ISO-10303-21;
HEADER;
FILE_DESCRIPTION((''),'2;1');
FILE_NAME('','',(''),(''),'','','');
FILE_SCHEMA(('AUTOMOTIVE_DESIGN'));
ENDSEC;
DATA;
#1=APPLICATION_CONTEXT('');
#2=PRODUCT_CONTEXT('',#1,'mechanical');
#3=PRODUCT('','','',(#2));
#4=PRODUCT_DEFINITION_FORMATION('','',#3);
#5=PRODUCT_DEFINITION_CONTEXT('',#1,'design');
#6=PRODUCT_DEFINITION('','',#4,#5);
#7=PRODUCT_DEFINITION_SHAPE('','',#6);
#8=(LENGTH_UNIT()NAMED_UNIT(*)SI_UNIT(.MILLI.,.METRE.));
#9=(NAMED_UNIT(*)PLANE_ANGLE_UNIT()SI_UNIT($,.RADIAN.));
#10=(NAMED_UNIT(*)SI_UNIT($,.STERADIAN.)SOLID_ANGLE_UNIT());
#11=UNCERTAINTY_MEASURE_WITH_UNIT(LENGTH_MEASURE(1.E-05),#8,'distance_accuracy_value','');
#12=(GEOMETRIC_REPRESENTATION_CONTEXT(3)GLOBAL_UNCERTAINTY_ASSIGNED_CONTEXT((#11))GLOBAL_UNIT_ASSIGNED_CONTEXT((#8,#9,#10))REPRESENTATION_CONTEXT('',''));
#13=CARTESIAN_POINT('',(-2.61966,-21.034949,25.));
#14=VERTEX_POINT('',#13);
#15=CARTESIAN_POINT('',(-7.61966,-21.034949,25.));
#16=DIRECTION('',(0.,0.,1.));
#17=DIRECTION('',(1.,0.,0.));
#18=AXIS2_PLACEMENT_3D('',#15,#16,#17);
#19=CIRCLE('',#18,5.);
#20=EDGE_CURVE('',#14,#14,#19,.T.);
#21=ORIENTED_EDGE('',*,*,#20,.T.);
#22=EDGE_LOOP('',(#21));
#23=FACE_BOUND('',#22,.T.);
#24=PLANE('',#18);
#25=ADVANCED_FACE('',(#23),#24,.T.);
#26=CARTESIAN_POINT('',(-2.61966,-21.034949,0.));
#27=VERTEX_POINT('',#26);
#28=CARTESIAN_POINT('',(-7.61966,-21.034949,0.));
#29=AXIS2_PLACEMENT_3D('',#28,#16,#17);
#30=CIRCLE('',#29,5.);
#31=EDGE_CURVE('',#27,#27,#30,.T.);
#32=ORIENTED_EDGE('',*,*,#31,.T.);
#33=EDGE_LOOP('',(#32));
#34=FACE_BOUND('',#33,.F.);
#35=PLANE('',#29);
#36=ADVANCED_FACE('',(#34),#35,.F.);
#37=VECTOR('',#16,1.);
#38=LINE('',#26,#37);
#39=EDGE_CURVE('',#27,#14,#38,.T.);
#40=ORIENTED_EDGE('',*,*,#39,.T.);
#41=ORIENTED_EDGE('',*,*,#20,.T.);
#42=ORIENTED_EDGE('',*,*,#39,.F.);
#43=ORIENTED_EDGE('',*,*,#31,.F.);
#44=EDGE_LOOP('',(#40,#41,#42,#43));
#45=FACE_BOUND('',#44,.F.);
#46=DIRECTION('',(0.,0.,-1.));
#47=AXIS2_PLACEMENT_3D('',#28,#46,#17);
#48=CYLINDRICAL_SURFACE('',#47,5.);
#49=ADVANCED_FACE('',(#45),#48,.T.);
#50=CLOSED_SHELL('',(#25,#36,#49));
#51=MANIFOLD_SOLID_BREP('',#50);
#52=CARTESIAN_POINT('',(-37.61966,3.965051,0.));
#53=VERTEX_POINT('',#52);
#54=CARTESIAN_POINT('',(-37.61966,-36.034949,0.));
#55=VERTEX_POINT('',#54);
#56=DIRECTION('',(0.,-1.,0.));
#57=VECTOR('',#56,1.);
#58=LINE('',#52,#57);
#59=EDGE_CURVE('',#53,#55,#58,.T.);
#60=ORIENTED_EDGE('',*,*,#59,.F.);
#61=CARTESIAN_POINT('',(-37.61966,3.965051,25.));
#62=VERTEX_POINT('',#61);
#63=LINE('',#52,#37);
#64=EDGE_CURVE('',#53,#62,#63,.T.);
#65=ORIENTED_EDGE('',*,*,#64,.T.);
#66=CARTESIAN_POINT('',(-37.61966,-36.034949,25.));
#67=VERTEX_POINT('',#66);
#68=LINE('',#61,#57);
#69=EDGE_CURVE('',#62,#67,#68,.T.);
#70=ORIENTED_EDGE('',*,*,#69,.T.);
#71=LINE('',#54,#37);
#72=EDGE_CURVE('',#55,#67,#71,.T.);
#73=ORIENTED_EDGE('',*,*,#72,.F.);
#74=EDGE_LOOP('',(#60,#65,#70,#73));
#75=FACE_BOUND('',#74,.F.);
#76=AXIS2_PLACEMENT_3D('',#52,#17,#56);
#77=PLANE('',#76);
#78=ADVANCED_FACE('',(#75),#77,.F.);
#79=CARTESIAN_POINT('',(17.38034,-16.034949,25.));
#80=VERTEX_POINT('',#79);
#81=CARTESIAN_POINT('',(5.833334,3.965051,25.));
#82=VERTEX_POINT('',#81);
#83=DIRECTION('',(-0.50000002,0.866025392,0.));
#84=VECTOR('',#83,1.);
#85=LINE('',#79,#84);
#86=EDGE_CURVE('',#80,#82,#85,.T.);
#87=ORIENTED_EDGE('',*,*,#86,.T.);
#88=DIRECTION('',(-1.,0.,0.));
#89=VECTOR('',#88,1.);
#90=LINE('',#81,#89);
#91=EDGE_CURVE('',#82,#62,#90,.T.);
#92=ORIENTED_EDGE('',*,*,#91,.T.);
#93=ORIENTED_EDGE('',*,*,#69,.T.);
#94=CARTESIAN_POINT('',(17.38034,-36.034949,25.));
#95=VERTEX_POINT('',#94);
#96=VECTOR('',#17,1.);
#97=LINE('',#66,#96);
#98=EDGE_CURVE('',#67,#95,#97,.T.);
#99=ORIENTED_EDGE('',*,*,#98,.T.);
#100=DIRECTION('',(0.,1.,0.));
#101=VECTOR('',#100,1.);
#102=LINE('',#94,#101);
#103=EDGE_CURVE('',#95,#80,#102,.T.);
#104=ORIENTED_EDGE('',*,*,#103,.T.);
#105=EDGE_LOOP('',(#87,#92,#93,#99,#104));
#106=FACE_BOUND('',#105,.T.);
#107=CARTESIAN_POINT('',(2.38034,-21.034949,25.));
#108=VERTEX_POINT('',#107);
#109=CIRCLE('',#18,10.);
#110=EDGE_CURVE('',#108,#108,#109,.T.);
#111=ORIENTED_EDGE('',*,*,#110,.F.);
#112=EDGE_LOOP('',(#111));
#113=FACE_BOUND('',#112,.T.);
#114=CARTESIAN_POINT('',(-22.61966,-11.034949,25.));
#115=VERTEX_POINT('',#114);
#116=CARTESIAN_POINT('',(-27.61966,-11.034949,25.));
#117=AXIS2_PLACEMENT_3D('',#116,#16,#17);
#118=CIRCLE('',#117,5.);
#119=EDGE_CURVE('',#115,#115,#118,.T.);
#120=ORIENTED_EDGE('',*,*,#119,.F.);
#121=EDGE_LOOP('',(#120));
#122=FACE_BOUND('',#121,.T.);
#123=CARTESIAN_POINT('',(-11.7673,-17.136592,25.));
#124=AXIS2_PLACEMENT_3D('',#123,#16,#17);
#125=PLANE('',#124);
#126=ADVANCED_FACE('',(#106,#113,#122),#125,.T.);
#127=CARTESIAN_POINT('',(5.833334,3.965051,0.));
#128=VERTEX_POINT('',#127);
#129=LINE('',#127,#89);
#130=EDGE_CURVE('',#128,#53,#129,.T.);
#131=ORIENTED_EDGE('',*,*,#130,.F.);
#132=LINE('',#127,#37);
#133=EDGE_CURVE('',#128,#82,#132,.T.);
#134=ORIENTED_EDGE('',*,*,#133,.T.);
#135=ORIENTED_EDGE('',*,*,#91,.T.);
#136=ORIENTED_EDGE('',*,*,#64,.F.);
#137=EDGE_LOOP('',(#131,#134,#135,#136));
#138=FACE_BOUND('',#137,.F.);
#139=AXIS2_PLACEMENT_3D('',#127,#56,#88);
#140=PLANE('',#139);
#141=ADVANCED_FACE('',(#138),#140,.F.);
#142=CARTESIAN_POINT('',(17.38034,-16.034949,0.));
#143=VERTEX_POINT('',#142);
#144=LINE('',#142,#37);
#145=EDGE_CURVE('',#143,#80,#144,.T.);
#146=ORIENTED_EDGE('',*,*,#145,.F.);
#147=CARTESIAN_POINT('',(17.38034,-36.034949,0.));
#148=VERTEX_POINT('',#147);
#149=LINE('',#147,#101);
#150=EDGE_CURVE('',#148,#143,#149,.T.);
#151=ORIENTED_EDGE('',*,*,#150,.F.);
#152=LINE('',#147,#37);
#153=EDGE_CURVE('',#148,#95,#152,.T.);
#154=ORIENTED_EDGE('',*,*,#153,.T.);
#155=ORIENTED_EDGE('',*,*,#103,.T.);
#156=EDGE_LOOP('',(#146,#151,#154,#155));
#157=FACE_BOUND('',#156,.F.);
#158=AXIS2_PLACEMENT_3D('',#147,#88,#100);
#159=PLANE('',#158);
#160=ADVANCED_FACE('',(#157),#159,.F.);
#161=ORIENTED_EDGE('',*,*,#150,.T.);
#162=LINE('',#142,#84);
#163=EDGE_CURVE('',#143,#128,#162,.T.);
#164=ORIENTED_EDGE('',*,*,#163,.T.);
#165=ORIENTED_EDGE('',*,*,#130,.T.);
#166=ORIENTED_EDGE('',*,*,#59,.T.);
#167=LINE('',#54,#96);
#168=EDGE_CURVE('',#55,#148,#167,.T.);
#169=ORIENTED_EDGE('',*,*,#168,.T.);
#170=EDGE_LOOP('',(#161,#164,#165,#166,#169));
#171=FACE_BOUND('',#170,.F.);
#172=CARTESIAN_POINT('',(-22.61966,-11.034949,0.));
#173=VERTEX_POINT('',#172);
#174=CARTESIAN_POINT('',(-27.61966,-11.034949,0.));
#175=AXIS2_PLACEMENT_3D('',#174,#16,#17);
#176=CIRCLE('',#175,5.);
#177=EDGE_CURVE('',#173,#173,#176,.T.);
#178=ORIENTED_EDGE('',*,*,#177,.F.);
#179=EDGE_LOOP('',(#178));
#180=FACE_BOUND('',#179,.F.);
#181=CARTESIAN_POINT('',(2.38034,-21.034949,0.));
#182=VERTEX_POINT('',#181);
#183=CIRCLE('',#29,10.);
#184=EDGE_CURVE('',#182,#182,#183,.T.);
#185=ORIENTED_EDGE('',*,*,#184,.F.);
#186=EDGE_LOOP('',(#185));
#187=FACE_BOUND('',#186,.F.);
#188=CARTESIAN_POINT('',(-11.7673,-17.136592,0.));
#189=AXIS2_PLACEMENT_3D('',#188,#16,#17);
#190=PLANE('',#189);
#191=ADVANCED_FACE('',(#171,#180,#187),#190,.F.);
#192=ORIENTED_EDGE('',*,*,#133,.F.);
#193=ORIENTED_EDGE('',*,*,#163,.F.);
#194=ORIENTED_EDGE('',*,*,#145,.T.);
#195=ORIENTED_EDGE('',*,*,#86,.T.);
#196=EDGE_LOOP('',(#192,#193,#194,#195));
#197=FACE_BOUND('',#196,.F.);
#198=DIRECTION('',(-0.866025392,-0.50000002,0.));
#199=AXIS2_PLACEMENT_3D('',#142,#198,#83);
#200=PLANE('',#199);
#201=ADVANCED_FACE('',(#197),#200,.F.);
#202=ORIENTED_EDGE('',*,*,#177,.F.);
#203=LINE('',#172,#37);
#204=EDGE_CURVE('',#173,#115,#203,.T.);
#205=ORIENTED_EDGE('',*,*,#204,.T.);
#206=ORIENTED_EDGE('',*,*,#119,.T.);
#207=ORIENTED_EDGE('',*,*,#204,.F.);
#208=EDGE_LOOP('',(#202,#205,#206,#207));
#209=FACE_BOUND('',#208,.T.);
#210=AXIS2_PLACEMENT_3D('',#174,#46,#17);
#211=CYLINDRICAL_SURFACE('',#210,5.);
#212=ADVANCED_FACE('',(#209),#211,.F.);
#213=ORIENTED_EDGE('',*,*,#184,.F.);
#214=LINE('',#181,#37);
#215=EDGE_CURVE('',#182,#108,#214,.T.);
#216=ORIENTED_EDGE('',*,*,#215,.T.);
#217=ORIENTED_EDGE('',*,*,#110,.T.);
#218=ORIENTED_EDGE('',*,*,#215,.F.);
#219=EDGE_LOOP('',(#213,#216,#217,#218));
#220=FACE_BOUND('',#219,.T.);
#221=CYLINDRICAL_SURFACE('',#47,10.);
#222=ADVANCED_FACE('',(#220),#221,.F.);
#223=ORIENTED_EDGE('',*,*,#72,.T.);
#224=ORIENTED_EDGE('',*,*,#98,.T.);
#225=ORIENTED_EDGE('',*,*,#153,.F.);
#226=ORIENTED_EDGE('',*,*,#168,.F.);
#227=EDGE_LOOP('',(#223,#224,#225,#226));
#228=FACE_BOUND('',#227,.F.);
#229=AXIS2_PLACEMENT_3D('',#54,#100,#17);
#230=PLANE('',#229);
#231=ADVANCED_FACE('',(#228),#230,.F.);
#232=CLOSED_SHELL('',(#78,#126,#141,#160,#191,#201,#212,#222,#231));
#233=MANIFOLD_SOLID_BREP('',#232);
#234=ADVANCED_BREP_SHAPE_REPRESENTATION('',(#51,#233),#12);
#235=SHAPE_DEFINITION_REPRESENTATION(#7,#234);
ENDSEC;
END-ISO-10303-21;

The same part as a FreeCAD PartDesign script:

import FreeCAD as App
import Part
import Sketcher
from FreeCAD import Vector
Q = App.Units.Quantity


def add_polygon(sketch, points):
    """Adds a closed chain of lines whose ends are joined by coincident constraints."""
    first, n = sketch.GeometryCount, len(points)
    for a, b in zip(points, points[1:] + points[:1]):
        sketch.addGeometry(Part.LineSegment(App.Vector(*a, 0), App.Vector(*b, 0)), False)
    for i in range(n):
        sketch.addConstraint(Sketcher.Constraint("Coincident", first + i, 2, first + (i + 1) % n, 1))

doc = App.newDocument("Part")
params = doc.addObject("Spreadsheet::Sheet", "Params")
for row, (alias, value) in enumerate([
    ("sketch1_diameter", "20 mm"),
    ("sketch1_diameter2", "10 mm"),
    ("sketch1_width", "55 mm"),
    ("sketch1_height", "40 mm"),
    ("sketch1_height2", "20 mm"),
    ("pad1_length", "25 mm"),
], start=1):
    params.set(f"A{row}", alias)
    params.set(f"B{row}", "=" + value)
    params.setAlias(f"B{row}", alias)

body = doc.addObject("PartDesign::Body", "Body")
body.AllowCompound = True

sketch1 = doc.addObject("Sketcher::SketchObject", "Sketch")
body.addObject(sketch1)
sketch1.AttachmentSupport = (doc.XY_Plane, [""])
sketch1.MapMode = "FlatFace"
add_polygon(sketch1, [(-37.61966, 3.965051), (-37.61966, -36.034949), (17.38034, -36.034949), (17.38034, -16.034949), (5.833334, 3.965051)])
sketch1.addGeometry(Part.Circle(Vector(-7.61966, -21.034949, 0), Vector(0, 0, 1), 10), False)
sketch1.addGeometry(Part.Circle(Vector(-27.61966, -11.034949, 0), Vector(0, 0, 1), 5), False)
sketch1.addGeometry(Part.Circle(Vector(-7.61966, -21.034949, 0), Vector(0, 0, 1), 5), False)
sketch1.addConstraint([
    Sketcher.Constraint("Vertical", 0),
    Sketcher.Constraint("Horizontal", 1),
    Sketcher.Constraint("Vertical", 2),
    Sketcher.Constraint("Horizontal", 4),
    Sketcher.Constraint("Coincident", 7, 3, 5, 3),
    Sketcher.Constraint("Equal", 6, 7),
    Sketcher.Constraint("Diameter", 5, Q("20 mm")),
    Sketcher.Constraint("Diameter", 6, Q("10 mm")),
    Sketcher.Constraint("DistanceX", 1, 1, 1, 2, Q("55 mm")),
    Sketcher.Constraint("DistanceY", 0, 2, 0, 1, Q("40 mm")),
    Sketcher.Constraint("DistanceY", 2, 1, 2, 2, Q("20 mm")),
    Sketcher.Constraint("Angle", 3, Q("120.000001 deg")),
    Sketcher.Constraint("DistanceX", 6, 3, 5, 3, Q("20 mm")),
    Sketcher.Constraint("DistanceY", 5, 3, 6, 3, Q("10 mm")),
    Sketcher.Constraint("DistanceX", 0, 2, 6, 3, Q("10 mm")),
    Sketcher.Constraint("DistanceY", 0, 2, 6, 3, Q("25 mm")),
    Sketcher.Constraint("DistanceX", 5, 3, -1, 1, Q("7.61966 mm")),
    Sketcher.Constraint("DistanceY", 5, 3, -1, 1, Q("21.034949 mm")),
])
sketch1.setExpression("Constraints[11]", "Params.sketch1_diameter")
sketch1.setExpression("Constraints[12]", "Params.sketch1_diameter2")
sketch1.setExpression("Constraints[13]", "Params.sketch1_width")
sketch1.setExpression("Constraints[14]", "Params.sketch1_height")
sketch1.setExpression("Constraints[15]", "Params.sketch1_height2")
pad1 = doc.addObject("PartDesign::Pad", "Pad")
body.addObject(pad1)
pad1.Profile = sketch1
pad1.setExpression("Length", "Params.pad1_length")

doc.recompute()
